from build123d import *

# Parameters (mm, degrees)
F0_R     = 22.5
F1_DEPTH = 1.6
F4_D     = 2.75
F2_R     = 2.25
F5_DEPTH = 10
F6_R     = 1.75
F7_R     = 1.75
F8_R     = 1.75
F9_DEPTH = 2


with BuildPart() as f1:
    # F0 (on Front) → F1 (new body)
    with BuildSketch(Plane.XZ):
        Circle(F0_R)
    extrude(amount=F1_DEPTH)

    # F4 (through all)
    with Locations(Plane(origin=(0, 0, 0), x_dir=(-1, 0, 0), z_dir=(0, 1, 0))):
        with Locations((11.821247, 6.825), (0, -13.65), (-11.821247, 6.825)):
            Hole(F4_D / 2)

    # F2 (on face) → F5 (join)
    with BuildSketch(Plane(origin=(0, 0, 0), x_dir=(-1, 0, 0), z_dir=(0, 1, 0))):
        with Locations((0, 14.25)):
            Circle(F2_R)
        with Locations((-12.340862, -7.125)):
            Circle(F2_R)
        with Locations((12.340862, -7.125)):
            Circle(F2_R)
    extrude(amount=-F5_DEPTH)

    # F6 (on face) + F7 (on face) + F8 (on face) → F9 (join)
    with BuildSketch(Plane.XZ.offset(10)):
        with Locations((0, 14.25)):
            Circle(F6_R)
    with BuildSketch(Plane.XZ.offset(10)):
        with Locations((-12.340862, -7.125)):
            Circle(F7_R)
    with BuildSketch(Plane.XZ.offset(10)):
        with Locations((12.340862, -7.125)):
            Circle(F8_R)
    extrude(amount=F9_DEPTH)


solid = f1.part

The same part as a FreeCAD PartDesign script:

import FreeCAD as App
import Part
import Sketcher

V = App.Vector

doc = App.newDocument("Part")
params = doc.addObject("Spreadsheet::Sheet", "Params")
for row, (alias, value) in enumerate([
    ("sketch1_diameter", "45 mm"),
    ("pad1_length", "1.6 mm"),
    ("sketch2_diameter", "2.75 mm"),
    ("hole_diameter", "2.75 mm"),
    ("sketch3_diameter", "4.5 mm"),
    ("pad2_length", "10 mm"),
    ("sketch4_diameter", "3.5 mm"),
    ("pad3_length", "2 mm"),
], start=1):
    params.set(f"A{row}", alias)
    params.set(f"B{row}", "=" + value)
    params.setAlias(f"B{row}", alias)

body = doc.addObject("PartDesign::Body", "Body")

sketch1 = body.newObject("Sketcher::SketchObject", "Sketch")
sketch1.AttachmentSupport = (doc.getObject("XZ_Plane"), [""])
sketch1.MapMode = "FlatFace"
sketch1.addGeometry(Part.Circle(V(0, 0, 0), V(0, 0, 1), 22.5), False)
sketch1.addConstraint(Sketcher.Constraint("Coincident", 0, 3, -1, 1))
sketch1.addConstraint(Sketcher.Constraint("Diameter", 0, 45.0))
sketch1.setExpression("Constraints[1]", "Params.sketch1_diameter")
pad1 = body.newObject("PartDesign::Pad", "Pad")
pad1.Profile = sketch1
pad1.setExpression("Length", "Params.pad1_length")

sketch2 = body.newObject("Sketcher::SketchObject", "Sketch001")
sketch2.AttachmentSupport = (doc.getObject("XZ_Plane"), [""])
sketch2.MapMode = "FlatFace"
sketch2.addGeometry(Part.Circle(V(-11.821247, 6.825, 0), V(0, 0, 1), 1.375), False)
sketch2.addGeometry(Part.Circle(V(0, -13.65, 0), V(0, 0, 1), 1.375), False)
sketch2.addGeometry(Part.Circle(V(11.821247, 6.825, 0), V(0, 0, 1), 1.375), False)
sketch2.addConstraint(Sketcher.Constraint("Equal", 0, 1))
sketch2.addConstraint(Sketcher.Constraint("Equal", 1, 2))
sketch2.addConstraint(Sketcher.Constraint("Symmetric", 0, 3, 2, 3, -2))
sketch2.addConstraint(Sketcher.Constraint("PointOnObject", 1, 3, -2))
sketch2.addConstraint(Sketcher.Constraint("Diameter", 0, 2.75))
sketch2.addConstraint(Sketcher.Constraint("DistanceY", 1, 3, -1, 1, 13.65))
sketch2.addConstraint(Sketcher.Constraint("DistanceY", -1, 1, 0, 3, 6.825))
sketch2.addConstraint(Sketcher.Constraint("DistanceX", 0, 3, -1, 1, 11.821247))
sketch2.setExpression("Constraints[4]", "Params.sketch2_diameter")
doc.recompute()
hole = body.newObject("PartDesign::Hole", "Hole")
hole.Profile = sketch2
hole.ThreadType = "None"
hole.setExpression("Diameter", "Params.hole_diameter")
hole.DepthType = "ThroughAll"
hole.Reversed = True

sketch3 = body.newObject("Sketcher::SketchObject", "Sketch002")
sketch3.AttachmentSupport = (doc.getObject("XZ_Plane"), [""])
sketch3.MapMode = "FlatFace"
sketch3.addGeometry(Part.Circle(V(0, 14.25, 0), V(0, 0, 1), 2.25), False)
sketch3.addGeometry(Part.Circle(V(12.340862, -7.125, 0), V(0, 0, 1), 2.25), False)
sketch3.addGeometry(Part.Circle(V(-12.340862, -7.125, 0), V(0, 0, 1), 2.25), False)
sketch3.addConstraint(Sketcher.Constraint("Equal", 0, 1))
sketch3.addConstraint(Sketcher.Constraint("Equal", 1, 2))
sketch3.addConstraint(Sketcher.Constraint("Symmetric", 1, 3, 2, 3, -2))
sketch3.addConstraint(Sketcher.Constraint("PointOnObject", 0, 3, -2))
sketch3.addConstraint(Sketcher.Constraint("Diameter", 0, 4.5))
sketch3.addConstraint(Sketcher.Constraint("DistanceY", -1, 1, 0, 3, 14.25))
sketch3.addConstraint(Sketcher.Constraint("DistanceY", 1, 3, -1, 1, 7.125))
sketch3.addConstraint(Sketcher.Constraint("DistanceX", -1, 1, 1, 3, 12.340862))
sketch3.setExpression("Constraints[4]", "Params.sketch3_diameter")
pad2 = body.newObject("PartDesign::Pad", "Pad001")
pad2.Profile = sketch3
pad2.setExpression("Length", "Params.pad2_length")

sketch4 = body.newObject("Sketcher::SketchObject", "Sketch003")
sketch4.AttachmentSupport = (doc.getObject("XZ_Plane"), [""])
sketch4.MapMode = "FlatFace"
sketch4.AttachmentOffset = App.Placement(V(0, 0, 10), App.Rotation())
sketch4.addGeometry(Part.Circle(V(0, 14.25, 0), V(0, 0, 1), 1.75), False)
sketch4.addGeometry(Part.Circle(V(-12.340862, -7.125, 0), V(0, 0, 1), 1.75), False)
sketch4.addGeometry(Part.Circle(V(12.340862, -7.125, 0), V(0, 0, 1), 1.75), False)
sketch4.addConstraint(Sketcher.Constraint("Equal", 0, 1))
sketch4.addConstraint(Sketcher.Constraint("Equal", 1, 2))
sketch4.addConstraint(Sketcher.Constraint("Symmetric", 1, 3, 2, 3, -2))
sketch4.addConstraint(Sketcher.Constraint("PointOnObject", 0, 3, -2))
sketch4.addConstraint(Sketcher.Constraint("Diameter", 0, 3.5))
sketch4.addConstraint(Sketcher.Constraint("DistanceY", -1, 1, 0, 3, 14.25))
sketch4.addConstraint(Sketcher.Constraint("DistanceY", 1, 3, -1, 1, 7.125))
sketch4.addConstraint(Sketcher.Constraint("DistanceX", 1, 3, -1, 1, 12.340862))
sketch4.setExpression("Constraints[4]", "Params.sketch4_diameter")
pad3 = body.newObject("PartDesign::Pad", "Pad002")
pad3.Profile = sketch4
pad3.setExpression("Length", "Params.pad3_length")

doc.recompute()
